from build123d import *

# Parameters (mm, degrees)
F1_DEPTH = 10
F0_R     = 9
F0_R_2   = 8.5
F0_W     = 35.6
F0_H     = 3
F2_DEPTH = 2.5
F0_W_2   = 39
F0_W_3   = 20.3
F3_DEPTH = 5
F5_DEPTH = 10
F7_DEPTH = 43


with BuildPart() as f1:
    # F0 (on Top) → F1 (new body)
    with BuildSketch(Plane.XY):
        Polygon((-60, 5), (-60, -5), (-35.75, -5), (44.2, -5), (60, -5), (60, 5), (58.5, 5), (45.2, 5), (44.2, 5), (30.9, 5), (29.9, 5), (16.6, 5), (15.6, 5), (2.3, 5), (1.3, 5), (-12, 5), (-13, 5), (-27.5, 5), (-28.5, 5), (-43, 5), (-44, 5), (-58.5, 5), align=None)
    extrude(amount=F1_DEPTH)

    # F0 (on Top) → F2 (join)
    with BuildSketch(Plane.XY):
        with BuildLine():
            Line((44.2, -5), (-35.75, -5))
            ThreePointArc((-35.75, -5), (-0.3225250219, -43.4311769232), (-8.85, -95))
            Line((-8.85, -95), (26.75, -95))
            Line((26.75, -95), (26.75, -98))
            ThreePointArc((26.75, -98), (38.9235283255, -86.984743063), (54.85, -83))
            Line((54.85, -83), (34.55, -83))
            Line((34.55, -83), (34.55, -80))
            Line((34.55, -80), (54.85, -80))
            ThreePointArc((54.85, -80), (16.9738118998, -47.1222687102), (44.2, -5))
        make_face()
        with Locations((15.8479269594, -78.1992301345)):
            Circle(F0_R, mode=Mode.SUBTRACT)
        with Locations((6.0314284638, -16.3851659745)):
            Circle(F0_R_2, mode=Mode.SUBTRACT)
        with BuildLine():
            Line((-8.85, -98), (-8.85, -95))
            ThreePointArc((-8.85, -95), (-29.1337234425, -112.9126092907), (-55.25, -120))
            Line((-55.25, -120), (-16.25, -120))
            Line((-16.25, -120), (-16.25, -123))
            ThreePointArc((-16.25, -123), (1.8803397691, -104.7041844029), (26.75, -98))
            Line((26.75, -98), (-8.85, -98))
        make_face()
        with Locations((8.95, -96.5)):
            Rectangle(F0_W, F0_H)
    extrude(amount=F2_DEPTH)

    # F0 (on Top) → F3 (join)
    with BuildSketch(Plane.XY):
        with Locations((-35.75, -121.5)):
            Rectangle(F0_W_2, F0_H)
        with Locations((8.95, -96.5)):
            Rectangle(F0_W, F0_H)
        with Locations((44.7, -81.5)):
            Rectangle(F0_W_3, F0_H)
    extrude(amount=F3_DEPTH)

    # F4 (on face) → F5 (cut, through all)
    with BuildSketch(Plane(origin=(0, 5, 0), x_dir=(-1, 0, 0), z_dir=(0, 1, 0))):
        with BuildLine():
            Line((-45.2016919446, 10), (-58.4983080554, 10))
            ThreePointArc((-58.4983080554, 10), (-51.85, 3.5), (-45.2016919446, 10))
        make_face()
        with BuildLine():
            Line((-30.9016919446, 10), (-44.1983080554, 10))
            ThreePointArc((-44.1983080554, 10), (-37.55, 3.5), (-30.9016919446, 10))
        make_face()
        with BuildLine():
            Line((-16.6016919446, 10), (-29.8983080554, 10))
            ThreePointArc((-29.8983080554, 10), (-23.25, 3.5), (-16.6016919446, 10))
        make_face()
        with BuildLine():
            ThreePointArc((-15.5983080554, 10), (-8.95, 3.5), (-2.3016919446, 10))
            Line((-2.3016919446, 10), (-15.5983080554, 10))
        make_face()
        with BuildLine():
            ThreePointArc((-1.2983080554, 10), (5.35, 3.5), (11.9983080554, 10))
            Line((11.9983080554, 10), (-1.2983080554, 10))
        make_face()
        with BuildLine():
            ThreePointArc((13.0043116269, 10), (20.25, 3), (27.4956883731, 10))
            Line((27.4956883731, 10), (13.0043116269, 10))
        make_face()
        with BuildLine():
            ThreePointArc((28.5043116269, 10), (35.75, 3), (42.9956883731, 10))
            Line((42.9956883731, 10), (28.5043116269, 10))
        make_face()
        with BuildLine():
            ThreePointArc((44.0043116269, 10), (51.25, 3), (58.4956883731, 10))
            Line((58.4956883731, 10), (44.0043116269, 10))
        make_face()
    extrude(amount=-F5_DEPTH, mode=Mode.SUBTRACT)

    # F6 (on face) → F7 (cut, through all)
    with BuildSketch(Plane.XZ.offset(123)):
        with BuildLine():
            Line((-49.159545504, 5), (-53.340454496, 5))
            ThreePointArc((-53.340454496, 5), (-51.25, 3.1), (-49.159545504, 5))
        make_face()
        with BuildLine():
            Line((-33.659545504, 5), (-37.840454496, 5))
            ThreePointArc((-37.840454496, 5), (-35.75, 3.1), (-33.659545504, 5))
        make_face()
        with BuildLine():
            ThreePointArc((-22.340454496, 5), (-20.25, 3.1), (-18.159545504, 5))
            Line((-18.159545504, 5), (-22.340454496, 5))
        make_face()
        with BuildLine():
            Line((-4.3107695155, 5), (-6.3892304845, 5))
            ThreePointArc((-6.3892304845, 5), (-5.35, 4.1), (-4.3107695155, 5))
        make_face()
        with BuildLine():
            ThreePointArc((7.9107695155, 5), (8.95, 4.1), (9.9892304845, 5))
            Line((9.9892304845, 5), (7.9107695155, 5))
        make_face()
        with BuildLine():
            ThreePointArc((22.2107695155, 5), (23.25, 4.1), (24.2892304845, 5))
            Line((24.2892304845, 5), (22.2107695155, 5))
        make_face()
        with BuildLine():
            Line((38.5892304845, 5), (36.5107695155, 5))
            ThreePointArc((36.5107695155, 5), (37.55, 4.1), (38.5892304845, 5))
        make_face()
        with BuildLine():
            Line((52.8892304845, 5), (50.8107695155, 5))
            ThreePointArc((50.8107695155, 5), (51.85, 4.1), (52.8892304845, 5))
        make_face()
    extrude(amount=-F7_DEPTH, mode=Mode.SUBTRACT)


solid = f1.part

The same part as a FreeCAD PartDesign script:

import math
import FreeCAD as App
import Part
import Sketcher
from FreeCAD import Vector
Q = App.Units.Quantity

doc = App.newDocument("Part")
body = doc.addObject("PartDesign::Body", "Body")

# Sketch on XY plane
sketch1 = doc.addObject("Sketcher::SketchObject", "Sketch")
body.addObject(sketch1)
sketch1.AttachmentSupport = (doc.XY_Plane, [""])
sketch1.MapMode = "FlatFace"
sketch1.addGeometry([
    Part.LineSegment(Vector(-60, 5, 0), Vector(-60, -5, 0)),
    Part.LineSegment(Vector(-60, -5, 0), Vector(60, -5, 0)),
    Part.LineSegment(Vector(60, -5, 0), Vector(60, 5, 0)),
    Part.LineSegment(Vector(60, 5, 0), Vector(-60, 5, 0)),
], False)
sketch1.addConstraint([
    Sketcher.Constraint("Coincident", 0, 2, 1, 1),
    Sketcher.Constraint("Coincident", 1, 2, 2, 1),
    Sketcher.Constraint("Coincident", 2, 2, 3, 1),
    Sketcher.Constraint("Coincident", 3, 2, 0, 1),
    Sketcher.Constraint("Vertical", 0),
    Sketcher.Constraint("Horizontal", 1),
    Sketcher.Constraint("Vertical", 2),
    Sketcher.Constraint("Horizontal", 3),
    Sketcher.Constraint("Symmetric", 0, 2, 2, 2, -1, 1),
    Sketcher.Constraint("DistanceX", 1, 1, 1, 2, Q("120 mm")),
    Sketcher.Constraint("DistanceY", 0, 2, 0, 1, Q("10 mm")),
])
pad1 = doc.addObject("PartDesign::Pad", "Pad")
body.addObject(pad1)
pad1.Profile = sketch1
pad1.Length = 10

# Sketch on XY plane
sketch2 = doc.addObject("Sketcher::SketchObject", "Sketch001")
body.addObject(sketch2)
sketch2.AttachmentSupport = (doc.XY_Plane, [""])
sketch2.MapMode = "FlatFace"
sketch2.addGeometry([
    Part.LineSegment(Vector(44.2, -5, 0), Vector(-35.8, -5, 0)),  # 0
    Part.ArcOfCircle(Part.Circle(Vector(-57.4, -60.5, 0), Vector(0, 0, 1), 59.6), math.radians(-35), math.radians(69)),  # 1
    Part.ArcOfCircle(Part.Circle(Vector(-57.4, -60.5, 0), Vector(0, 0, 1), 59.6), math.radians(-88), math.radians(-35)),  # 2
    Part.LineSegment(Vector(-55.2, -120, 0), Vector(-16.2, -120, 0)),  # 3
    Part.LineSegment(Vector(-16.2, -120, 0), Vector(-16.2, -123, 0)),  # 4
    Part.ArcOfCircle(Part.Circle(Vector(26.8, -147.5, 0), Vector(0, 0, 1), 49.5), math.radians(90), math.radians(150)),  # 5
    Part.ArcOfCircle(Part.Circle(Vector(54.9, -116.8, 0), Vector(0, 0, 1), 33.8), math.radians(90), math.radians(146)),  # 6
    Part.LineSegment(Vector(54.9, -83, 0), Vector(34.5, -83, 0)),  # 7
    Part.LineSegment(Vector(34.5, -83, 0), Vector(34.5, -80, 0)),  # 8
    Part.LineSegment(Vector(34.5, -80, 0), Vector(54.9, -80, 0)),  # 9
    Part.ArcOfCircle(Part.Circle(Vector(54.9, -41.7, 0), Vector(0, 0, 1), 38.3), math.radians(106), math.radians(270)),  # 10
    Part.Circle(Vector(15.8, -78.2, 0), Vector(0, 0, 1), 9),  # 11
    Part.Circle(Vector(6, -16.4, 0), Vector(0, 0, 1), 8.5),  # 12
], False)
sketch2.addConstraint([
    Sketcher.Constraint("Coincident", 0, 2, 1, 2),
    Sketcher.Constraint("Tangent", 1, 1, 2, 2),
    Sketcher.Constraint("Coincident", 2, 1, 3, 1),
    Sketcher.Constraint("Coincident", 3, 2, 4, 1),
    Sketcher.Constraint("Coincident", 4, 2, 5, 2),
    Sketcher.Constraint("Coincident", 5, 1, 6, 2),
    Sketcher.Constraint("Tangent", 6, 1, 7, 1),
    Sketcher.Constraint("Coincident", 7, 2, 8, 1),
    Sketcher.Constraint("Coincident", 8, 2, 9, 1),
    Sketcher.Constraint("Tangent", 9, 2, 10, 2),
    Sketcher.Constraint("Coincident", 10, 1, 0, 1),
    Sketcher.Constraint("Horizontal", 0),
    Sketcher.Constraint("Horizontal", 3),
    Sketcher.Constraint("Vertical", 4),
    Sketcher.Constraint("Horizontal", 7),
    Sketcher.Constraint("Vertical", 8),
    Sketcher.Constraint("Horizontal", 9),
    Sketcher.Constraint("Equal", 1, 2),
    Sketcher.Constraint("Vertical", 6, 3, 10, 3),
    Sketcher.Constraint("Equal", 4, 8),
    Sketcher.Constraint("Diameter", 11, Q("18 mm")),
    Sketcher.Constraint("Diameter", 12, Q("17 mm")),
    Sketcher.Constraint("DistanceX", 3, 1, 3, 2, Q("39 mm")),
    Sketcher.Constraint("DistanceY", 4, 2, 4, 1, Q("3 mm")),
    Sketcher.Constraint("Radius", 5, Q("49.48 mm")),
    Sketcher.Constraint("DistanceX", 7, 2, 7, 1, Q("20.3 mm")),
    Sketcher.Constraint("DistanceY", 0, 2, -1, 1, Q("5 mm")),
    Sketcher.Constraint("DistanceY", 1, 1, -1, 1, Q("95 mm")),
    Sketcher.Constraint("DistanceY", 2, 1, -1, 1, Q("120 mm")),
    Sketcher.Constraint("DistanceY", 5, 1, -1, 1, Q("98 mm")),
    Sketcher.Constraint("DistanceY", 6, 1, -1, 1, Q("83 mm")),
    Sketcher.Constraint("DistanceX", 3, 2, 5, 1, Q("43 mm")),
    Sketcher.Constraint("DistanceX", 0, 2, 0, 1, Q("79.95 mm")),
    Sketcher.Constraint("DistanceX", -1, 1, 10, 1, Q("44.2 mm")),
    Sketcher.Constraint("DistanceX", 5, 3, 6, 3, Q("28.1 mm")),
    Sketcher.Constraint("DistanceX", 0, 2, 10, 3, Q("90.6 mm")),
    Sketcher.Constraint("DistanceX", 1, 1, 5, 3, Q("35.6 mm")),
    Sketcher.Constraint("DistanceX", 12, 3, 11, 3, Q("9.816498 mm")),
    Sketcher.Constraint("DistanceY", 11, 3, -1, 1, Q("78.19923 mm")),
    Sketcher.Constraint("DistanceX", -1, 1, 12, 3, Q("6.031428 mm")),
    Sketcher.Constraint("DistanceY", 12, 3, -1, 1, Q("16.385166 mm")),
])
pad2 = doc.addObject("PartDesign::Pad", "Pad001")
body.addObject(pad2)
pad2.Profile = sketch2
pad2.Length = 2.5

# Sketch on XY plane
sketch3 = doc.addObject("Sketcher::SketchObject", "Sketch002")
body.addObject(sketch3)
sketch3.AttachmentSupport = (doc.XY_Plane, [""])
sketch3.MapMode = "FlatFace"
sketch3.addGeometry([
    Part.LineSegment(Vector(-55.2, -120, 0), Vector(-55.2, -123, 0)),  # 0
    Part.LineSegment(Vector(-55.2, -123, 0), Vector(-16.2, -123, 0)),  # 1
    Part.LineSegment(Vector(-16.2, -123, 0), Vector(-16.2, -120, 0)),  # 2
    Part.LineSegment(Vector(-16.2, -120, 0), Vector(-55.2, -120, 0)),  # 3
    Part.LineSegment(Vector(-8.8, -95, 0), Vector(-8.8, -98, 0)),  # 4
    Part.LineSegment(Vector(-8.8, -98, 0), Vector(26.8, -98, 0)),  # 5
    Part.LineSegment(Vector(26.8, -98, 0), Vector(26.8, -95, 0)),  # 6
    Part.LineSegment(Vector(26.8, -95, 0), Vector(-8.8, -95, 0)),  # 7
    Part.LineSegment(Vector(34.5, -80, 0), Vector(34.5, -83, 0)),  # 8
    Part.LineSegment(Vector(34.5, -83, 0), Vector(54.9, -83, 0)),  # 9
    Part.LineSegment(Vector(54.9, -83, 0), Vector(54.9, -80, 0)),  # 10
    Part.LineSegment(Vector(54.9, -80, 0), Vector(34.5, -80, 0)),  # 11
], False)
sketch3.addConstraint([
    Sketcher.Constraint("Coincident", 0, 2, 1, 1),
    Sketcher.Constraint("Coincident", 1, 2, 2, 1),
    Sketcher.Constraint("Coincident", 2, 2, 3, 1),
    Sketcher.Constraint("Coincident", 3, 2, 0, 1),
    Sketcher.Constraint("Coincident", 4, 2, 5, 1),
    Sketcher.Constraint("Coincident", 5, 2, 6, 1),
    Sketcher.Constraint("Coincident", 6, 2, 7, 1),
    Sketcher.Constraint("Coincident", 7, 2, 4, 1),
    Sketcher.Constraint("Coincident", 8, 2, 9, 1),
    Sketcher.Constraint("Coincident", 9, 2, 10, 1),
    Sketcher.Constraint("Coincident", 10, 2, 11, 1),
    Sketcher.Constraint("Coincident", 11, 2, 8, 1),
    Sketcher.Constraint("Vertical", 0),
    Sketcher.Constraint("Horizontal", 1),
    Sketcher.Constraint("Vertical", 2),
    Sketcher.Constraint("Horizontal", 3),
    Sketcher.Constraint("Vertical", 4),
    Sketcher.Constraint("Horizontal", 5),
    Sketcher.Constraint("Vertical", 6),
    Sketcher.Constraint("Horizontal", 7),
    Sketcher.Constraint("Vertical", 8),
    Sketcher.Constraint("Horizontal", 9),
    Sketcher.Constraint("Vertical", 10),
    Sketcher.Constraint("Horizontal", 11),
    Sketcher.Constraint("Equal", 2, 4),
    Sketcher.Constraint("Equal", 6, 8),
    Sketcher.Constraint("DistanceX", 1, 1, 1, 2, Q("39 mm")),
    Sketcher.Constraint("DistanceY", 0, 2, 0, 1, Q("3 mm")),
    Sketcher.Constraint("DistanceX", 5, 1, 5, 2, Q("35.6 mm")),
    Sketcher.Constraint("DistanceX", 9, 1, 9, 2, Q("20.3 mm")),
    Sketcher.Constraint("DistanceY", 0, 2, -1, 1, Q("123 mm")),
    Sketcher.Constraint("DistanceY", 4, 2, -1, 1, Q("98 mm")),
    Sketcher.Constraint("DistanceY", 8, 2, -1, 1, Q("83 mm")),
    Sketcher.Constraint("DistanceX", 2, 2, 5, 2, Q("43 mm")),
    Sketcher.Constraint("DistanceX", 6, 2, 8, 2, Q("7.8 mm")),
    Sketcher.Constraint("DistanceX", 0, 2, -1, 1, Q("55.25 mm")),
])
pad3 = doc.addObject("PartDesign::Pad", "Pad002")
body.addObject(pad3)
pad3.Profile = sketch3
pad3.Length = 5

# Sketch on XZ plane
sketch4 = doc.addObject("Sketcher::SketchObject", "Sketch003")
body.addObject(sketch4)
sketch4.AttachmentSupport = (doc.XZ_Plane, [""])
sketch4.MapMode = "FlatFace"
sketch4.AttachmentOffset = App.Placement(Vector(0, 0, -5), App.Rotation())
sketch4.addGeometry([
    Part.LineSegment(Vector(45, 10, 0), Vector(58, 10, 0)),  # 0
    Part.ArcOfCircle(Part.Circle(Vector(52, 10, 0), Vector(0, 0, 1), 7), math.radians(-179), math.radians(-1)),  # 1
    Part.LineSegment(Vector(31, 10, 0), Vector(44, 10, 0)),  # 2
    Part.ArcOfCircle(Part.Circle(Vector(38, 10, 0), Vector(0, 0, 1), 7), math.radians(-179), math.radians(-1)),  # 3
    Part.LineSegment(Vector(17, 10, 0), Vector(30, 10, 0)),  # 4
    Part.ArcOfCircle(Part.Circle(Vector(23, 10, 0), Vector(0, 0, 1), 7), math.radians(-179), math.radians(-1)),  # 5
    Part.ArcOfCircle(Part.Circle(Vector(9, 10, 0), Vector(0, 0, 1), 7), math.radians(-179), math.radians(-1)),  # 6
    Part.LineSegment(Vector(2, 10, 0), Vector(16, 10, 0)),  # 7
    Part.ArcOfCircle(Part.Circle(Vector(-5, 10, 0), Vector(0, 0, 1), 7), math.radians(-179), math.radians(-1)),  # 8
    Part.LineSegment(Vector(-12, 10, 0), Vector(1, 10, 0)),  # 9
    Part.ArcOfCircle(Part.Circle(Vector(-20, 10, 0), Vector(0, 0, 1), 7), math.radians(-178), math.radians(-2)),  # 10
    Part.LineSegment(Vector(-27, 10, 0), Vector(-13, 10, 0)),  # 11
    Part.ArcOfCircle(Part.Circle(Vector(-36, 10, 0), Vector(0, 0, 1), 7), math.radians(-178), math.radians(-2)),  # 12
    Part.LineSegment(Vector(-43, 10, 0), Vector(-29, 10, 0)),  # 13
    Part.ArcOfCircle(Part.Circle(Vector(-51, 10, 0), Vector(0, 0, 1), 7), math.radians(-178), math.radians(-2)),  # 14
    Part.LineSegment(Vector(-58, 10, 0), Vector(-44, 10, 0)),  # 15
], False)
sketch4.addConstraint([
    Sketcher.Constraint("Coincident", 0, 1, 1, 1),
    Sketcher.Constraint("Coincident", 1, 2, 0, 2),
    Sketcher.Constraint("Coincident", 2, 1, 3, 1),
    Sketcher.Constraint("Coincident", 3, 2, 2, 2),
    Sketcher.Constraint("Coincident", 4, 1, 5, 1),
    Sketcher.Constraint("Coincident", 5, 2, 4, 2),
    Sketcher.Constraint("Coincident", 6, 1, 7, 1),
    Sketcher.Constraint("Coincident", 7, 2, 6, 2),
    Sketcher.Constraint("Coincident", 8, 1, 9, 1),
    Sketcher.Constraint("Coincident", 9, 2, 8, 2),
    Sketcher.Constraint("Coincident", 10, 1, 11, 1),
    Sketcher.Constraint("Coincident", 11, 2, 10, 2),
    Sketcher.Constraint("Coincident", 12, 1, 13, 1),
    Sketcher.Constraint("Coincident", 13, 2, 12, 2),
    Sketcher.Constraint("Coincident", 14, 1, 15, 1),
    Sketcher.Constraint("Coincident", 15, 2, 14, 2),
    Sketcher.Constraint("Horizontal", 0),
    Sketcher.Constraint("Horizontal", 2),
    Sketcher.Constraint("Horizontal", 4),
    Sketcher.Constraint("Horizontal", 7),
    Sketcher.Constraint("Horizontal", 9),
    Sketcher.Constraint("Horizontal", 11),
    Sketcher.Constraint("Horizontal", 13),
    Sketcher.Constraint("Horizontal", 15),
    Sketcher.Constraint("Equal", 1, 3),
    Sketcher.Constraint("Equal", 3, 5),
    Sketcher.Constraint("Equal", 5, 6),
    Sketcher.Constraint("Equal", 6, 8),
    Sketcher.Constraint("Equal", 10, 12),
    Sketcher.Constraint("Equal", 12, 14),
    Sketcher.Constraint("Horizontal", 1, 3, 3, 3),
    Sketcher.Constraint("Horizontal", 3, 3, 5, 3),
    Sketcher.Constraint("Horizontal", 5, 3, 6, 3),
    Sketcher.Constraint("Horizontal", 6, 3, 8, 3),
    Sketcher.Constraint("Horizontal", 10, 3, 12, 3),
    Sketcher.Constraint("Horizontal", 12, 3, 14, 3),
    Sketcher.Constraint("Horizontal", 1, 2, 2, 1),
    Sketcher.Constraint("Horizontal", 3, 2, 4, 1),
    Sketcher.Constraint("Horizontal", 5, 2, 6, 1),
    Sketcher.Constraint("Horizontal", 7, 2, 8, 1),
    Sketcher.Constraint("Horizontal", 9, 2, 10, 1),
    Sketcher.Constraint("Horizontal", 11, 2, 12, 1),
    Sketcher.Constraint("Horizontal", 13, 2, 14, 1),
    Sketcher.Constraint("Radius", 1, Q("6.65 mm")),
    Sketcher.Constraint("Radius", 10, Q("7.25 mm")),
    Sketcher.Constraint("DistanceY", -1, 1, 0, 1, Q("10 mm")),
    Sketcher.Constraint("DistanceX", 12, 3, 5, 3, Q("59 mm")),
    Sketcher.Constraint("DistanceX", 14, 3, 10, 3, Q("31 mm")),
    Sketcher.Constraint("DistanceX", 3, 3, 1, 3, Q("14.3 mm")),
    Sketcher.Constraint("DistanceX", 5, 3, 3, 3, Q("14.3 mm")),
    Sketcher.Constraint("DistanceX", 6, 3, 5, 3, Q("14.3 mm")),
    Sketcher.Constraint("DistanceX", 8, 3, 6, 3, Q("14.3 mm")),
    Sketcher.Constraint("DistanceX", 10, 3, 8, 3, Q("14.9 mm")),
    Sketcher.Constraint("DistanceY", 8, 3, 10, 3, Q("0.1 mm")),
    Sketcher.Constraint("DistanceX", -1, 1, 1, 3, Q("51.85 mm")),
    Sketcher.Constraint("DistanceY", -1, 1, 1, 3, Q("10.15 mm")),
])
pocket1 = doc.addObject("PartDesign::Pocket", "Pocket")
body.addObject(pocket1)
pocket1.Profile = sketch4
pocket1.Length = 10
pocket1.Reversed = True

# Sketch on XZ plane
sketch5 = doc.addObject("Sketcher::SketchObject", "Sketch004")
body.addObject(sketch5)
sketch5.AttachmentSupport = (doc.XZ_Plane, [""])
sketch5.MapMode = "FlatFace"
sketch5.AttachmentOffset = App.Placement(Vector(0, 0, 123), App.Rotation())
sketch5.addGeometry([
    Part.LineSegment(Vector(-49.2, 5, 0), Vector(-53.3, 5, 0)),  # 0
    Part.ArcOfCircle(Part.Circle(Vector(-51.2, 5.2, 0), Vector(0, 0, 1), 2.1), math.radians(-175), math.radians(-5)),  # 1
    Part.LineSegment(Vector(-33.7, 5, 0), Vector(-37.8, 5, 0)),  # 2
    Part.ArcOfCircle(Part.Circle(Vector(-35.8, 5.2, 0), Vector(0, 0, 1), 2.1), math.radians(-175), math.radians(-5)),  # 3
    Part.ArcOfCircle(Part.Circle(Vector(-20.2, 5.2, 0), Vector(0, 0, 1), 2.1), math.radians(-175), math.radians(-5)),  # 4
    Part.LineSegment(Vector(-18.2, 5, 0), Vector(-22.3, 5, 0)),  # 5
    Part.LineSegment(Vector(-4.3, 5, 0), Vector(-6.4, 5, 0)),  # 6
    Part.ArcOfCircle(Part.Circle(Vector(-5.3, 5.2, 0), Vector(0, 0, 1), 1.1), math.radians(-172), math.radians(-8)),  # 7
    Part.ArcOfCircle(Part.Circle(Vector(8.9, 5.2, 0), Vector(0, 0, 1), 1.1), math.radians(-172), math.radians(-8)),  # 8
    Part.LineSegment(Vector(10, 5, 0), Vector(7.9, 5, 0)),  # 9
    Part.ArcOfCircle(Part.Circle(Vector(23.2, 5.2, 0), Vector(0, 0, 1), 1.1), math.radians(-172), math.radians(-8)),  # 10
    Part.LineSegment(Vector(24.3, 5, 0), Vector(22.2, 5, 0)),  # 11
    Part.LineSegment(Vector(38.6, 5, 0), Vector(36.5, 5, 0)),  # 12
    Part.ArcOfCircle(Part.Circle(Vector(37.5, 5.2, 0), Vector(0, 0, 1), 1.1), math.radians(-172), math.radians(-8)),  # 13
    Part.LineSegment(Vector(52.9, 5, 0), Vector(50.8, 5, 0)),  # 14
    Part.ArcOfCircle(Part.Circle(Vector(51.9, 5.2, 0), Vector(0, 0, 1), 1.1), math.radians(-172), math.radians(-8)),  # 15
], False)
sketch5.addConstraint([
    Sketcher.Constraint("Coincident", 0, 1, 1, 2),
    Sketcher.Constraint("Coincident", 1, 1, 0, 2),
    Sketcher.Constraint("Coincident", 2, 1, 3, 2),
    Sketcher.Constraint("Coincident", 3, 1, 2, 2),
    Sketcher.Constraint("Coincident", 4, 1, 5, 2),
    Sketcher.Constraint("Coincident", 5, 1, 4, 2),
    Sketcher.Constraint("Coincident", 6, 1, 7, 2),
    Sketcher.Constraint("Coincident", 7, 1, 6, 2),
    Sketcher.Constraint("Coincident", 8, 1, 9, 2),
    Sketcher.Constraint("Coincident", 9, 1, 8, 2),
    Sketcher.Constraint("Coincident", 10, 1, 11, 2),
    Sketcher.Constraint("Coincident", 11, 1, 10, 2),
    Sketcher.Constraint("Coincident", 12, 1, 13, 2),
    Sketcher.Constraint("Coincident", 13, 1, 12, 2),
    Sketcher.Constraint("Coincident", 14, 1, 15, 2),
    Sketcher.Constraint("Coincident", 15, 1, 14, 2),
    Sketcher.Constraint("Horizontal", 0),
    Sketcher.Constraint("Horizontal", 2),
    Sketcher.Constraint("Horizontal", 5),
    Sketcher.Constraint("Horizontal", 6),
    Sketcher.Constraint("Horizontal", 9),
    Sketcher.Constraint("Horizontal", 11),
    Sketcher.Constraint("Horizontal", 12),
    Sketcher.Constraint("Horizontal", 14),
    Sketcher.Constraint("Equal", 1, 3),
    Sketcher.Constraint("Equal", 3, 4),
    Sketcher.Constraint("Equal", 7, 8),
    Sketcher.Constraint("Equal", 8, 10),
    Sketcher.Constraint("Equal", 10, 13),
    Sketcher.Constraint("Equal", 13, 15),
    Sketcher.Constraint("Horizontal", 1, 3, 3, 3),
    Sketcher.Constraint("Horizontal", 3, 3, 4, 3),
    Sketcher.Constraint("Horizontal", 7, 3, 8, 3),
    Sketcher.Constraint("Horizontal", 8, 3, 10, 3),
    Sketcher.Constraint("Horizontal", 10, 3, 13, 3),
    Sketcher.Constraint("Horizontal", 13, 3, 15, 3),
    Sketcher.Constraint("Horizontal", 1, 1, 2, 1),
    Sketcher.Constraint("Horizontal", 3, 1, 4, 1),
    Sketcher.Constraint("Horizontal", 5, 1, 6, 1),
    Sketcher.Constraint("Horizontal", 7, 1, 8, 1),
    Sketcher.Constraint("Horizontal", 9, 1, 10, 1),
    Sketcher.Constraint("Horizontal", 11, 1, 12, 1),
    Sketcher.Constraint("Horizontal", 13, 1, 14, 1),
    Sketcher.Constraint("Radius", 1, Q("2.1 mm")),
    Sketcher.Constraint("Radius", 7, Q("1.05 mm")),
    Sketcher.Constraint("DistanceY", -1, 1, 0, 1, Q("5 mm")),
    Sketcher.Constraint("DistanceX", 1, 3, 4, 3, Q("31 mm")),
    Sketcher.Constraint("DistanceX", 3, 3, 10, 3, Q("59 mm")),
    Sketcher.Constraint("DistanceY", -1, 1, 1, 3, Q("5.2 mm")),
    Sketcher.Constraint("DistanceX", 1, 3, 3, 3, Q("15.5 mm")),
    Sketcher.Constraint("DistanceX", 4, 3, 7, 3, Q("14.9 mm")),
    Sketcher.Constraint("DistanceX", 7, 3, 8, 3, Q("14.3 mm")),
    Sketcher.Constraint("DistanceX", 10, 3, 13, 3, Q("14.3 mm")),
    Sketcher.Constraint("DistanceX", 13, 3, 15, 3, Q("14.3 mm")),
    Sketcher.Constraint("DistanceX", 1, 3, -1, 1, Q("51.25 mm")),
    Sketcher.Constraint("DistanceY", -1, 1, 7, 3, Q("5.15 mm")),
])
pocket2 = doc.addObject("PartDesign::Pocket", "Pocket001")
body.addObject(pocket2)
pocket2.Profile = sketch5
pocket2.Type = "ThroughAll"

doc.recompute()
